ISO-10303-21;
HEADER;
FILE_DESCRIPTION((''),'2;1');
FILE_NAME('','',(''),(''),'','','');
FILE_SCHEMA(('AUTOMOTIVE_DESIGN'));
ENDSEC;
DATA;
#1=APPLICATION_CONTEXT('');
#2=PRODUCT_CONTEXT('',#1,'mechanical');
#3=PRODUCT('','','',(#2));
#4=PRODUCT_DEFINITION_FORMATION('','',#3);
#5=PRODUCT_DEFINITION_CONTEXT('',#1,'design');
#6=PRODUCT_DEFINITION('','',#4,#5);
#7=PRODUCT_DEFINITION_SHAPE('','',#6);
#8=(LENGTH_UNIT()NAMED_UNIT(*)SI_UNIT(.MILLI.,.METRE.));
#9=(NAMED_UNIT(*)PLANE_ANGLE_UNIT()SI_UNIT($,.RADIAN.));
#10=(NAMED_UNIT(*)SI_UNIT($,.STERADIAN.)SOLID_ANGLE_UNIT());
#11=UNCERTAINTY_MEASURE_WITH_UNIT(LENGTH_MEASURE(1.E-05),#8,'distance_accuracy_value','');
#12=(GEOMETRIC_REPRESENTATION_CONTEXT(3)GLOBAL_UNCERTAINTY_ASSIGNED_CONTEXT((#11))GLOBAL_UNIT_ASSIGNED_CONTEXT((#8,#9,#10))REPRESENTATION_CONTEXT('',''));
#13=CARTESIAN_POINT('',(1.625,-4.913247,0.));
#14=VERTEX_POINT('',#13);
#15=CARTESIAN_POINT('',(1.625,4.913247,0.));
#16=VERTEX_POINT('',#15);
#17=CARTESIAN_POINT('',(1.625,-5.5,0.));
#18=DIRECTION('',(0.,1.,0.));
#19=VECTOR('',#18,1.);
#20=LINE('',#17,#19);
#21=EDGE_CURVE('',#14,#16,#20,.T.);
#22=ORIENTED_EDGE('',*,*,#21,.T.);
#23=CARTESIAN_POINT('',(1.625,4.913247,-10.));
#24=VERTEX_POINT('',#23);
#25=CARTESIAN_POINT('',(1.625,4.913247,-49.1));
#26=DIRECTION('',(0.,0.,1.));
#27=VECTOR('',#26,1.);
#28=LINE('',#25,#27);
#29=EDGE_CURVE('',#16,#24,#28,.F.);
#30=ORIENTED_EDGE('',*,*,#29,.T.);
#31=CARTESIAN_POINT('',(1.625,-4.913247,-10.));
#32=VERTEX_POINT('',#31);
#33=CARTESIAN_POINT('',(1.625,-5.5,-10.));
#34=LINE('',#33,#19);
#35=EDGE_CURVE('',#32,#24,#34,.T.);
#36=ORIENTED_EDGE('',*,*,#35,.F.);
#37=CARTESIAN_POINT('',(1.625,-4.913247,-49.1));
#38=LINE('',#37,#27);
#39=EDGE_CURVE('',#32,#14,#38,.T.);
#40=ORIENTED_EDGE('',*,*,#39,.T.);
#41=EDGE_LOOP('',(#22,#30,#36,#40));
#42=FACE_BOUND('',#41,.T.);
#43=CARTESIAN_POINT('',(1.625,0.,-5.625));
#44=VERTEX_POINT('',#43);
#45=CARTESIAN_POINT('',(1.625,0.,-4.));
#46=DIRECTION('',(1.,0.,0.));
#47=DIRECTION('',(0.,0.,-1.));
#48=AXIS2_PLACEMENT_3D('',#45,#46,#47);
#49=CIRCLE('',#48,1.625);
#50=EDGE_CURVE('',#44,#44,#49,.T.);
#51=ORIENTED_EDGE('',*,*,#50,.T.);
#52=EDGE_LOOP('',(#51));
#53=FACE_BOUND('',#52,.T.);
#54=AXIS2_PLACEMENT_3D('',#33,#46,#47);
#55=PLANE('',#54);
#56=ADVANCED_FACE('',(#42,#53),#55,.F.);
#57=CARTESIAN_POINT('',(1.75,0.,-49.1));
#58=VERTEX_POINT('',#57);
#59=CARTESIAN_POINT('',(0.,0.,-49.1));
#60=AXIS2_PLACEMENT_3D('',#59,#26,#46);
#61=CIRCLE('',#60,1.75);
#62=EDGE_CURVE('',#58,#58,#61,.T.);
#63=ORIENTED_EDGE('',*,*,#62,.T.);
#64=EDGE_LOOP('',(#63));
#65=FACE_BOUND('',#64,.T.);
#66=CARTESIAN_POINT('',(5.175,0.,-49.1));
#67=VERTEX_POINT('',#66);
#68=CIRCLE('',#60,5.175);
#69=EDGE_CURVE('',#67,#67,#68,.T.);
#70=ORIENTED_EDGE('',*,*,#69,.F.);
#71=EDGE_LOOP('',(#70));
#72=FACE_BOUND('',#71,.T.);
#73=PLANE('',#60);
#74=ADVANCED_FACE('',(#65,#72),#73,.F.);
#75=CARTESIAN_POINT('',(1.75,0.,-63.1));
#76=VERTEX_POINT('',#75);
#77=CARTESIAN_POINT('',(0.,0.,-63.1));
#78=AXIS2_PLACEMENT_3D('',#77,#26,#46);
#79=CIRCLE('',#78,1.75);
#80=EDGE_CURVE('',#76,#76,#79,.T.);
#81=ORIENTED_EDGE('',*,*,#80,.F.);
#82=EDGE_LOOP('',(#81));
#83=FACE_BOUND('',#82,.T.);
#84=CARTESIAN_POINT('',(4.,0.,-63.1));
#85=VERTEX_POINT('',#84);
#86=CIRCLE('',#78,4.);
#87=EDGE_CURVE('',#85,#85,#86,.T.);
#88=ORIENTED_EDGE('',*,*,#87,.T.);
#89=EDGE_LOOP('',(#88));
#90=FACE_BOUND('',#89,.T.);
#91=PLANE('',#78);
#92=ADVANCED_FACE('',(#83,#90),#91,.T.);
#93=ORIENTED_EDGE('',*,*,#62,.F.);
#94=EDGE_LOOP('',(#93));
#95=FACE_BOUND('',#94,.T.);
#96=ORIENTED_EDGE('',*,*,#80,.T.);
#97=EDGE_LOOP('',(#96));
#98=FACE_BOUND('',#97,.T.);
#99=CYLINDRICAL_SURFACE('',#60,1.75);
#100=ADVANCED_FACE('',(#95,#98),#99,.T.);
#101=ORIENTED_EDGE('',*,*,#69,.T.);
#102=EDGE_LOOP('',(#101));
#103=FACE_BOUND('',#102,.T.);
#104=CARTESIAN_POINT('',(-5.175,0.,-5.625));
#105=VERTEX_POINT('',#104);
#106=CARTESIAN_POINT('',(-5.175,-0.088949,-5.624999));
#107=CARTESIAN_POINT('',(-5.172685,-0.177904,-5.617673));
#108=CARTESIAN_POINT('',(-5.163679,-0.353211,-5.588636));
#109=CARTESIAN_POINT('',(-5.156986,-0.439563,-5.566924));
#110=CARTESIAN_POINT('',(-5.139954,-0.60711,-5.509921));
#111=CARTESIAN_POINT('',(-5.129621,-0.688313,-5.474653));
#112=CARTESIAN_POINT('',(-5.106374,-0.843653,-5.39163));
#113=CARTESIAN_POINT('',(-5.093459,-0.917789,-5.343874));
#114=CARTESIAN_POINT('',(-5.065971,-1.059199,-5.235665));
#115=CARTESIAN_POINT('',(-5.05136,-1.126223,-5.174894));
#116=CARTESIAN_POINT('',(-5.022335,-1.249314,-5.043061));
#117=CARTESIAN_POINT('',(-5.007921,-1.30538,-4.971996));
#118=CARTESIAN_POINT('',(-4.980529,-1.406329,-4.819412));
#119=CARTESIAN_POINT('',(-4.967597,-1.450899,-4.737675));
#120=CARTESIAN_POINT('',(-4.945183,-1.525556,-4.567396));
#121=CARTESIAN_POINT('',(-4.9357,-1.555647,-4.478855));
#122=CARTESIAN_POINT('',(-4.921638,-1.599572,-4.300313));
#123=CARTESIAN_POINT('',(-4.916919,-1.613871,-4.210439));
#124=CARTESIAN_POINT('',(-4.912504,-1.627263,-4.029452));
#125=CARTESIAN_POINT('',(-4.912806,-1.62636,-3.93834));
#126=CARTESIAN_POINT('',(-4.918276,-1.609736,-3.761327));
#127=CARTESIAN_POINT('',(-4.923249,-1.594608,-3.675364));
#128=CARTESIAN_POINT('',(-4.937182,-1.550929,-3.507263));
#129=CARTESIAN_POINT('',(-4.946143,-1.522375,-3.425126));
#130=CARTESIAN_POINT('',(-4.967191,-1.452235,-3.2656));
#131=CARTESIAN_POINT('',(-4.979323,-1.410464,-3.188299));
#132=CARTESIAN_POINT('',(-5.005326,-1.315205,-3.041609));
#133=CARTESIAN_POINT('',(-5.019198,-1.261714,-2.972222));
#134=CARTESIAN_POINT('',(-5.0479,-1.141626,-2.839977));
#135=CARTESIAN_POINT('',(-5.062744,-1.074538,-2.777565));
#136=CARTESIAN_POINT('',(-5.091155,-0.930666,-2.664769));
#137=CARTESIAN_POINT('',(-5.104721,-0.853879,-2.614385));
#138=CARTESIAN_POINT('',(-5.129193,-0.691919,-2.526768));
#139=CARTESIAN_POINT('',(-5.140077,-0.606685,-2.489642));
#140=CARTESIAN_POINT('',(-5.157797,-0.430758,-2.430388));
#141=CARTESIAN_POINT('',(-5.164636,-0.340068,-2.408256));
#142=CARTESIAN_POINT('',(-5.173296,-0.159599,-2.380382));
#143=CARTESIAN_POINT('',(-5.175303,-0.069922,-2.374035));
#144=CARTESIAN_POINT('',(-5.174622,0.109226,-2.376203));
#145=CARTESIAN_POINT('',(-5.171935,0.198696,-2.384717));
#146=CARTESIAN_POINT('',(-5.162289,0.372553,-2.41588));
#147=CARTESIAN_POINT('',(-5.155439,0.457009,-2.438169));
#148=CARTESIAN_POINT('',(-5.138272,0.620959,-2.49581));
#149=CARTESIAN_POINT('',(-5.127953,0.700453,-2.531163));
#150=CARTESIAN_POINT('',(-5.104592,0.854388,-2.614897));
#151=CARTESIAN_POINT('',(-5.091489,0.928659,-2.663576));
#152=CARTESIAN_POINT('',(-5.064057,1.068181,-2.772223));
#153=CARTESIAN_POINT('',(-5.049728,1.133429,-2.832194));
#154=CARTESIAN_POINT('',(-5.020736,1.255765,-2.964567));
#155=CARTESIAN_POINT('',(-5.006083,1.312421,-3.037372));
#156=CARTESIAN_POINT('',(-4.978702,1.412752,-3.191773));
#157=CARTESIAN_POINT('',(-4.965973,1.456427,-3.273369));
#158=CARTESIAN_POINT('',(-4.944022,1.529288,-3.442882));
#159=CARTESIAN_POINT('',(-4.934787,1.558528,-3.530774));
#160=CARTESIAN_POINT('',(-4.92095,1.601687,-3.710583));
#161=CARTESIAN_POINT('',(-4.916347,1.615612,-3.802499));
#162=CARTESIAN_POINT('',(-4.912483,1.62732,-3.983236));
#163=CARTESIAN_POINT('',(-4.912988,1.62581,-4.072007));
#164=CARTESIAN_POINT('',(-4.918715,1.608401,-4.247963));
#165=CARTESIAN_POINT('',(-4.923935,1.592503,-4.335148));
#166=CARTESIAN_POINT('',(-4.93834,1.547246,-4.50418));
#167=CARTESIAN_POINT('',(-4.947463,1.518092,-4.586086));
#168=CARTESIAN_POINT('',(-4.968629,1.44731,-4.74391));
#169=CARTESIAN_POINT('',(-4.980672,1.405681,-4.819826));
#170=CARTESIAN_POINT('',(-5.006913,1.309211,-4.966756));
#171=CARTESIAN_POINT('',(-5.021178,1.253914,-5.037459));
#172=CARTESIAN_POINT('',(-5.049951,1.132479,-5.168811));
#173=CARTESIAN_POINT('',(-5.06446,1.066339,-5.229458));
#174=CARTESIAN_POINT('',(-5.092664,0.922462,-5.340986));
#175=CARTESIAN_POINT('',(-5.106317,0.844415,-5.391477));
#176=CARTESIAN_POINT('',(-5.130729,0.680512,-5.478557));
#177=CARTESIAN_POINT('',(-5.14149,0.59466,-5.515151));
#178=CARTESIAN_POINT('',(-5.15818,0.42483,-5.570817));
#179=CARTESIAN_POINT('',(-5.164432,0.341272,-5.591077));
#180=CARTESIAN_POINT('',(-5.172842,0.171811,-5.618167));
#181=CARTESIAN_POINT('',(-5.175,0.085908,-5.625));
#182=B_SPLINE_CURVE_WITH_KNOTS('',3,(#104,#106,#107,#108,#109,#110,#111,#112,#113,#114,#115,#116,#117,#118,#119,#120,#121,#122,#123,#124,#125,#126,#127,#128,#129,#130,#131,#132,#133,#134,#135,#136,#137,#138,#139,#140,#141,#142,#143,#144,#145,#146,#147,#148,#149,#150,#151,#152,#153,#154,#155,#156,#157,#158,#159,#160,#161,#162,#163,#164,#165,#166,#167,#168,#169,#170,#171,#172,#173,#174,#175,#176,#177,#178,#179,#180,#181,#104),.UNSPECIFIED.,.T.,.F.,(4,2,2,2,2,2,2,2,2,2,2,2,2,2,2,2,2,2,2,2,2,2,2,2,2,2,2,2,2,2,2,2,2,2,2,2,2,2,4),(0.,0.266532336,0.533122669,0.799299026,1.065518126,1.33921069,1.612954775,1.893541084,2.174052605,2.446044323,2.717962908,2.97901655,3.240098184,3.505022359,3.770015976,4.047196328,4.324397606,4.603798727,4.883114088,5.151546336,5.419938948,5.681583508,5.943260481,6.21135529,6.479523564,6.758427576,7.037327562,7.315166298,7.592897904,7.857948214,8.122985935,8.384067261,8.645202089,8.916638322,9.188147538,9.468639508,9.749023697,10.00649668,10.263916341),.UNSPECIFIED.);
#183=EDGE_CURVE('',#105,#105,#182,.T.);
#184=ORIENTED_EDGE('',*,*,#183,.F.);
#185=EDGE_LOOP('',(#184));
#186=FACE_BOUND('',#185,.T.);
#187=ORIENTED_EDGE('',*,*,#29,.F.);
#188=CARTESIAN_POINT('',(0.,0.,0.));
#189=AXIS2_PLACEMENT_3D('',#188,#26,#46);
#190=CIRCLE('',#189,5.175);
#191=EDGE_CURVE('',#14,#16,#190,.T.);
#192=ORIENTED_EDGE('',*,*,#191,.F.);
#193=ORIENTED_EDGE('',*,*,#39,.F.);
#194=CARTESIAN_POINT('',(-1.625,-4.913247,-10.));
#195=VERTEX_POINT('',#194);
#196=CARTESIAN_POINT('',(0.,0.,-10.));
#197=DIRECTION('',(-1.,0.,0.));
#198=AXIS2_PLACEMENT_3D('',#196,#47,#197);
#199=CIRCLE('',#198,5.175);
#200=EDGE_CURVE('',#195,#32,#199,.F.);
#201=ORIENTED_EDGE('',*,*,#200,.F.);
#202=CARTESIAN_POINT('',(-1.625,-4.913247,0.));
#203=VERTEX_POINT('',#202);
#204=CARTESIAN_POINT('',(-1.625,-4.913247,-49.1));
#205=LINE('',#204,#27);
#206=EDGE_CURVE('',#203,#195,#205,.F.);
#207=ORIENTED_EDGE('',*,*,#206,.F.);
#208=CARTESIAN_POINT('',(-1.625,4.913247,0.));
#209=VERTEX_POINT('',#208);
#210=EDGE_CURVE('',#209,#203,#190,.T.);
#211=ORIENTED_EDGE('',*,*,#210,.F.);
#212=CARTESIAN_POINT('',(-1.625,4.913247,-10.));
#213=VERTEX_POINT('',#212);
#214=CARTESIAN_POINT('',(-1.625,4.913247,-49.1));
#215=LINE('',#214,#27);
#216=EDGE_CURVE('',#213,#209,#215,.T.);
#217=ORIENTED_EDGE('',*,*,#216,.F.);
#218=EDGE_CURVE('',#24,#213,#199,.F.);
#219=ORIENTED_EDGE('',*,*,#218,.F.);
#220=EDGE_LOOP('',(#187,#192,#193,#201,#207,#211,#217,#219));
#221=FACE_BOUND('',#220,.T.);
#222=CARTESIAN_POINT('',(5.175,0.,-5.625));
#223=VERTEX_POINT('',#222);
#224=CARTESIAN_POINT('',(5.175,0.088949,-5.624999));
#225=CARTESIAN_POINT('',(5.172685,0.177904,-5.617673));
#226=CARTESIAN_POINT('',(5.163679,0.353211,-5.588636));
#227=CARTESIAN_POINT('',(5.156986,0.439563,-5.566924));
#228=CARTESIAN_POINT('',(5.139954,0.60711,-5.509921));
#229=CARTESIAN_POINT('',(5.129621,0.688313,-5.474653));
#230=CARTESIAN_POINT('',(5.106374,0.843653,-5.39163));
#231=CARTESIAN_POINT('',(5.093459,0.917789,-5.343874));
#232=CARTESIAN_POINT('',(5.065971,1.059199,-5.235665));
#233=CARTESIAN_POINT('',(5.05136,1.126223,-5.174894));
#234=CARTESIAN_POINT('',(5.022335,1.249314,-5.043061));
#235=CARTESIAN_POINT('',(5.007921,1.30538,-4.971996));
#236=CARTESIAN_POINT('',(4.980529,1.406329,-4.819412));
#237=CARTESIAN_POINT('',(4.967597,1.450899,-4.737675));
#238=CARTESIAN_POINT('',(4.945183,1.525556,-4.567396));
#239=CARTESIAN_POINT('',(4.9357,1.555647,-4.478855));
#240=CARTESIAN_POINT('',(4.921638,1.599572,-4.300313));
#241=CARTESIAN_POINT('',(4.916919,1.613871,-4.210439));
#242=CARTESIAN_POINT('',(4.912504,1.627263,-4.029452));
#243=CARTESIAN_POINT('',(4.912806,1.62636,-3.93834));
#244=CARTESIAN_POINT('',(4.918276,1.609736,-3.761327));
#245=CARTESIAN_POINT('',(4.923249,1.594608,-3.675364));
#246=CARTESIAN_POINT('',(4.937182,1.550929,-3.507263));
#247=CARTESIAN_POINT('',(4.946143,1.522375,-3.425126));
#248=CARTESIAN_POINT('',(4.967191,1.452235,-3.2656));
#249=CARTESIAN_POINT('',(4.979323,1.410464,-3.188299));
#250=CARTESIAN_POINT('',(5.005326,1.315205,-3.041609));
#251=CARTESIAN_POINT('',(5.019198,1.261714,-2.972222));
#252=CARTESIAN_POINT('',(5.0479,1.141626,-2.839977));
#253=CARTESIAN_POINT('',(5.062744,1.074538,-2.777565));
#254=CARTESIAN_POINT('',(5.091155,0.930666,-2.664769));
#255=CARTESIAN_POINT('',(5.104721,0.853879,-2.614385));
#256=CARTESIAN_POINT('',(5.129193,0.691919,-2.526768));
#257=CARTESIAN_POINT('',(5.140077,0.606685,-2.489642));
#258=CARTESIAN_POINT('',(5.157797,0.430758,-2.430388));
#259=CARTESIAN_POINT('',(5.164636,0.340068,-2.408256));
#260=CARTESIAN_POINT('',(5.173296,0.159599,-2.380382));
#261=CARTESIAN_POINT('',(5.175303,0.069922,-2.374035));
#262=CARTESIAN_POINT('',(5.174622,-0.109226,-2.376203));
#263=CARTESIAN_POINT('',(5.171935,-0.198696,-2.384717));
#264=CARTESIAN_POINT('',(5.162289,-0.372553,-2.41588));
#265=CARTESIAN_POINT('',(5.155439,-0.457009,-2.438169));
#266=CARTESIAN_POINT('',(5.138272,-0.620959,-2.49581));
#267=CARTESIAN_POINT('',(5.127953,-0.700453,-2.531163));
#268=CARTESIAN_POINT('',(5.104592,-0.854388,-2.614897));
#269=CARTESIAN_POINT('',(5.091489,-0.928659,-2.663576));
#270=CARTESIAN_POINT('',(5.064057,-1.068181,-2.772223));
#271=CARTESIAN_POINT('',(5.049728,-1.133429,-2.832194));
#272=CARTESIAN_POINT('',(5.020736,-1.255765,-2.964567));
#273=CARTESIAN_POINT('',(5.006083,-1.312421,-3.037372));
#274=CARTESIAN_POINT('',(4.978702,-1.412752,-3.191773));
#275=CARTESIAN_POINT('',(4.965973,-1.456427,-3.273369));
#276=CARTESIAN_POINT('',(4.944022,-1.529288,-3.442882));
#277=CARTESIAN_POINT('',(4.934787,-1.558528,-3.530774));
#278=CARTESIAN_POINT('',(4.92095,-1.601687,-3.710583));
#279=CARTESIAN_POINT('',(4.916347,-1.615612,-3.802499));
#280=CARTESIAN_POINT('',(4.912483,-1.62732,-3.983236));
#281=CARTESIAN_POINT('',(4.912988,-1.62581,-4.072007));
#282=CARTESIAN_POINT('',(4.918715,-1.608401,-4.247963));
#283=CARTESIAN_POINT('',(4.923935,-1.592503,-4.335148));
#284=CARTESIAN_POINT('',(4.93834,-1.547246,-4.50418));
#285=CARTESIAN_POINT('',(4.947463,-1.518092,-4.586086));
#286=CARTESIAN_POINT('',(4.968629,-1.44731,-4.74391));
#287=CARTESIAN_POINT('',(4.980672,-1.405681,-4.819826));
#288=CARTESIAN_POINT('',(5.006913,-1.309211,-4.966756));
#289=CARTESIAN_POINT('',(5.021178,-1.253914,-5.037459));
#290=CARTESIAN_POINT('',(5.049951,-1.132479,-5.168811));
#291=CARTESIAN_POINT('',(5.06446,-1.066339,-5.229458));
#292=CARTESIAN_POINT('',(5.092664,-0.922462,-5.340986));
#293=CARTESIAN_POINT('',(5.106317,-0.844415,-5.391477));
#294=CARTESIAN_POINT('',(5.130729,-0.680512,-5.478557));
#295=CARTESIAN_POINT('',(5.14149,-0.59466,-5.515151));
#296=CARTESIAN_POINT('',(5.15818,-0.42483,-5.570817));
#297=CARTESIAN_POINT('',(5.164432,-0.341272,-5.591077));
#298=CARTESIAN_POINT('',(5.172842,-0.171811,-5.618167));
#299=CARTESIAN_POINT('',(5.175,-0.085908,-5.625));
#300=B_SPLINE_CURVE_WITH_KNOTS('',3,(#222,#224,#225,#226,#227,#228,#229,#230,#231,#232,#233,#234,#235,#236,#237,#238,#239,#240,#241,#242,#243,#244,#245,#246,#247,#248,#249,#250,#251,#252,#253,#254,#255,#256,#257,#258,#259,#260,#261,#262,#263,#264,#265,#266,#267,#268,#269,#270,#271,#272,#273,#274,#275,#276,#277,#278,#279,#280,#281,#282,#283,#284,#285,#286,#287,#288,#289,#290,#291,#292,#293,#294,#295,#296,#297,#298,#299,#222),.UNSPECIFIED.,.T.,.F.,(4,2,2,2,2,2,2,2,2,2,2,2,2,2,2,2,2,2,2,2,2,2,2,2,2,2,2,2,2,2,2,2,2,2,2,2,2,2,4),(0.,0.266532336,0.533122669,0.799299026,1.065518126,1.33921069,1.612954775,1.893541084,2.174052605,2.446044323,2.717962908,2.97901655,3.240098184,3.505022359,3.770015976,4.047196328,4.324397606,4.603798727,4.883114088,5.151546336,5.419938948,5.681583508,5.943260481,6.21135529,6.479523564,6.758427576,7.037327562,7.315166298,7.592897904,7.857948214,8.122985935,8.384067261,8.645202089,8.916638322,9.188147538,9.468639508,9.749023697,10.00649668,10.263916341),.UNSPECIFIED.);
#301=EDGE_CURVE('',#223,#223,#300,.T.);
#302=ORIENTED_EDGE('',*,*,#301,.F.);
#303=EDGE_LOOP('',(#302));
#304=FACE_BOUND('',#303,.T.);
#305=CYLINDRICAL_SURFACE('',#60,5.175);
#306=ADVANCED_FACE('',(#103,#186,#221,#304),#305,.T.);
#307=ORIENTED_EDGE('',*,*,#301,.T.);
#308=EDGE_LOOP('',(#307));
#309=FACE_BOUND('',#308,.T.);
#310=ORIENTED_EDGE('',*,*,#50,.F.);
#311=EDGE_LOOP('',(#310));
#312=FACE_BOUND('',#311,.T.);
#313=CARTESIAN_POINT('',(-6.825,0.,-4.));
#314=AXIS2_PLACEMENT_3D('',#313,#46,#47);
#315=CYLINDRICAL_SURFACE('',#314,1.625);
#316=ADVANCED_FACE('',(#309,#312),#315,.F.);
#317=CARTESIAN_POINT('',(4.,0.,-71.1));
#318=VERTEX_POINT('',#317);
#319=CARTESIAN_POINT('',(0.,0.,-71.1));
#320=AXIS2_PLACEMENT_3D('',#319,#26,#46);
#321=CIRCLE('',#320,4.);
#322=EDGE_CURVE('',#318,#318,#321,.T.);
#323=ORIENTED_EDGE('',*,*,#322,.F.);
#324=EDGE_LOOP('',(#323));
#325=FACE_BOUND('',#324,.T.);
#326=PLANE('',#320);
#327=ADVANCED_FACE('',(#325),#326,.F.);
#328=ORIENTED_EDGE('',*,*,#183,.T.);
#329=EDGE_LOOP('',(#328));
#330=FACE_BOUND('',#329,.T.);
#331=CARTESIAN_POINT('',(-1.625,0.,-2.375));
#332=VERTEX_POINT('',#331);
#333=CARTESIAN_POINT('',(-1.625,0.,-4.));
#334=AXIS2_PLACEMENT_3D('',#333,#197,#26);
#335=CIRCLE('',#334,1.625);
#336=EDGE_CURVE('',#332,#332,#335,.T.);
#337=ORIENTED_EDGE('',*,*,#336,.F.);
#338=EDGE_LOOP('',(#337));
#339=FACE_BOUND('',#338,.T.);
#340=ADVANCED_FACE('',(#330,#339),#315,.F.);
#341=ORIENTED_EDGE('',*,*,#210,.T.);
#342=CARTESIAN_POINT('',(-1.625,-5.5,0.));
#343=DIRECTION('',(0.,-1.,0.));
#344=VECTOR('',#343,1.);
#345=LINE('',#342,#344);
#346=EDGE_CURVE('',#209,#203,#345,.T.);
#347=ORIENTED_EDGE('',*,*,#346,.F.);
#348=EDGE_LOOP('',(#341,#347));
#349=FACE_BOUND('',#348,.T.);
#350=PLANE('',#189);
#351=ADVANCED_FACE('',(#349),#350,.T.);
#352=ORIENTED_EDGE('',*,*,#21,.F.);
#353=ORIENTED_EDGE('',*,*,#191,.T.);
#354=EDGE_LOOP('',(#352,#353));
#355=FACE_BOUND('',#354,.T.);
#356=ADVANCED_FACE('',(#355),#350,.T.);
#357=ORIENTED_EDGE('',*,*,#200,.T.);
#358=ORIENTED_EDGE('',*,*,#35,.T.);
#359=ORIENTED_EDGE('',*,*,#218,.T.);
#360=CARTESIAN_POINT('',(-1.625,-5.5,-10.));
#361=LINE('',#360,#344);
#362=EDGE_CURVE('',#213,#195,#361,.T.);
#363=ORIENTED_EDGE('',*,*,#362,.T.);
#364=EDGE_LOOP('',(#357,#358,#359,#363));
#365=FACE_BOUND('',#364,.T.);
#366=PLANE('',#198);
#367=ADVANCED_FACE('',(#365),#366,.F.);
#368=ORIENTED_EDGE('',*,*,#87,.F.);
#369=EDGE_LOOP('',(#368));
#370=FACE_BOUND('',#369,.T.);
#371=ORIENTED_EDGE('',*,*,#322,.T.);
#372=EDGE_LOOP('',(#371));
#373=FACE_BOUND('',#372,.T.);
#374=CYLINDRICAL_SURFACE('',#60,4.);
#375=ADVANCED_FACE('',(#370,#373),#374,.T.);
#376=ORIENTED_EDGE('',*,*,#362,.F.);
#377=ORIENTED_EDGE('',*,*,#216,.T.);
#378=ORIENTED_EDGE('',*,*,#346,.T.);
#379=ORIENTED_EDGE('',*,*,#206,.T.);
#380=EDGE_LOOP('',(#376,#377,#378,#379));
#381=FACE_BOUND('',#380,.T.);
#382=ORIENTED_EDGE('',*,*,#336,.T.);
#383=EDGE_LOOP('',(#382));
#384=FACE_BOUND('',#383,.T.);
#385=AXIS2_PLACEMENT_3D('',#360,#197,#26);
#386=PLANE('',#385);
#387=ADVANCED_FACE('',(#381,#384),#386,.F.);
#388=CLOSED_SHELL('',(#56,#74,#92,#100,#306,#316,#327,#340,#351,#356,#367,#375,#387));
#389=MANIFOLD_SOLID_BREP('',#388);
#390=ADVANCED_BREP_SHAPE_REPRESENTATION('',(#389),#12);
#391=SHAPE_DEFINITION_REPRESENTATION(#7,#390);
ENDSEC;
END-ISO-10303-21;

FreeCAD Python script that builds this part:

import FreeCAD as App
import Part
import Sketcher
from FreeCAD import Vector
Q = App.Units.Quantity


def add_polygon(sketch, points):
    """Adds a closed chain of lines whose ends are joined by coincident constraints."""
    first, n = sketch.GeometryCount, len(points)
    for a, b in zip(points, points[1:] + points[:1]):
        sketch.addGeometry(Part.LineSegment(App.Vector(*a, 0), App.Vector(*b, 0)), False)
    for i in range(n):
        sketch.addConstraint(Sketcher.Constraint("Coincident", first + i, 2, first + (i + 1) % n, 1))

doc = App.newDocument("Part")
body = doc.addObject("PartDesign::Body", "Body")

sketch1 = body.newObject("Sketcher::SketchObject", "Sketch")
sketch1.AttachmentSupport = (doc.getObject("YZ_Plane"), [""])
sketch1.MapMode = "FlatFace"
add_polygon(sketch1, [(5.175, 0), (0, 0), (0, -71.1), (4, -71.1), (4, -63.1), (1.75, -63.1), (1.75, -49.1), (5.175, -49.1)])
sketch1.addConstraint(Sketcher.Constraint("Horizontal", 0))
sketch1.addConstraint(Sketcher.Constraint("Vertical", 1))
sketch1.addConstraint(Sketcher.Constraint("Horizontal", 2))
sketch1.addConstraint(Sketcher.Constraint("Vertical", 3))
sketch1.addConstraint(Sketcher.Constraint("Horizontal", 4))
sketch1.addConstraint(Sketcher.Constraint("Vertical", 5))
sketch1.addConstraint(Sketcher.Constraint("Horizontal", 6))
sketch1.addConstraint(Sketcher.Constraint("Vertical", 7))
sketch1.addConstraint(Sketcher.Constraint("Coincident", 0, 2, -1, 1))
sketch1.addConstraint(Sketcher.Constraint("DistanceX", 2, 1, 2, 2, Q("4 mm")))
sketch1.addConstraint(Sketcher.Constraint("DistanceY", 3, 1, 3, 2, Q("8 mm")))
sketch1.addConstraint(Sketcher.Constraint("DistanceY", 5, 1, 5, 2, Q("14 mm")))
sketch1.addConstraint(Sketcher.Constraint("DistanceY", 1, 2, 1, 1, Q("71.1 mm")))
sketch1.addConstraint(Sketcher.Constraint("DistanceX", 4, 2, 4, 1, Q("2.25 mm")))
sketch1.addConstraint(Sketcher.Constraint("DistanceX", 0, 2, 0, 1, Q("5.175 mm")))
revolution = body.newObject("PartDesign::Revolution", "Revolution")
revolution.Profile = sketch1
revolution.ReferenceAxis = (sketch1, ["V_Axis"])
revolution.Angle = 360

sketch2 = body.newObject("Sketcher::SketchObject", "Sketch001")
sketch2.AttachmentSupport = (doc.getObject("XY_Plane"), [""])
sketch2.MapMode = "FlatFace"
add_polygon(sketch2, [(-1.625, 5.5), (-1.625, -5.5), (1.625, -5.5), (1.625, 5.5)])
sketch2.addConstraint(Sketcher.Constraint("Vertical", 0))
sketch2.addConstraint(Sketcher.Constraint("Horizontal", 1))
sketch2.addConstraint(Sketcher.Constraint("Vertical", 2))
sketch2.addConstraint(Sketcher.Constraint("Horizontal", 3))
sketch2.addConstraint(Sketcher.Constraint("Symmetric", 0, 2, 2, 2, -1, 1))
sketch2.addConstraint(Sketcher.Constraint("DistanceY", 0, 2, 0, 1, Q("11 mm")))
sketch2.addConstraint(Sketcher.Constraint("DistanceX", 1, 1, 1, 2, Q("3.25 mm")))
pocket1 = body.newObject("PartDesign::Pocket", "Pocket")
pocket1.Profile = sketch2
pocket1.Length = 10

sketch3 = body.newObject("Sketcher::SketchObject", "Sketch002")
sketch3.AttachmentSupport = (doc.getObject("YZ_Plane"), [""])
sketch3.MapMode = "FlatFace"
sketch3.AttachmentOffset = App.Placement(Vector(0, 0, 5.175), App.Rotation())
sketch3.addGeometry(Part.Circle(Vector(0, -4, 0), Vector(0, 0, 1), 1.625), False)
sketch3.addConstraint(Sketcher.Constraint("PointOnObject", 0, 3, -2))
sketch3.addConstraint(Sketcher.Constraint("Diameter", 0, Q("3.25 mm")))
sketch3.addConstraint(Sketcher.Constraint("DistanceY", 0, 3, -1, 1, Q("4 mm")))
pocket2 = body.newObject("PartDesign::Pocket", "Pocket001")
pocket2.Profile = sketch3
pocket2.Length = 12

doc.recompute()
